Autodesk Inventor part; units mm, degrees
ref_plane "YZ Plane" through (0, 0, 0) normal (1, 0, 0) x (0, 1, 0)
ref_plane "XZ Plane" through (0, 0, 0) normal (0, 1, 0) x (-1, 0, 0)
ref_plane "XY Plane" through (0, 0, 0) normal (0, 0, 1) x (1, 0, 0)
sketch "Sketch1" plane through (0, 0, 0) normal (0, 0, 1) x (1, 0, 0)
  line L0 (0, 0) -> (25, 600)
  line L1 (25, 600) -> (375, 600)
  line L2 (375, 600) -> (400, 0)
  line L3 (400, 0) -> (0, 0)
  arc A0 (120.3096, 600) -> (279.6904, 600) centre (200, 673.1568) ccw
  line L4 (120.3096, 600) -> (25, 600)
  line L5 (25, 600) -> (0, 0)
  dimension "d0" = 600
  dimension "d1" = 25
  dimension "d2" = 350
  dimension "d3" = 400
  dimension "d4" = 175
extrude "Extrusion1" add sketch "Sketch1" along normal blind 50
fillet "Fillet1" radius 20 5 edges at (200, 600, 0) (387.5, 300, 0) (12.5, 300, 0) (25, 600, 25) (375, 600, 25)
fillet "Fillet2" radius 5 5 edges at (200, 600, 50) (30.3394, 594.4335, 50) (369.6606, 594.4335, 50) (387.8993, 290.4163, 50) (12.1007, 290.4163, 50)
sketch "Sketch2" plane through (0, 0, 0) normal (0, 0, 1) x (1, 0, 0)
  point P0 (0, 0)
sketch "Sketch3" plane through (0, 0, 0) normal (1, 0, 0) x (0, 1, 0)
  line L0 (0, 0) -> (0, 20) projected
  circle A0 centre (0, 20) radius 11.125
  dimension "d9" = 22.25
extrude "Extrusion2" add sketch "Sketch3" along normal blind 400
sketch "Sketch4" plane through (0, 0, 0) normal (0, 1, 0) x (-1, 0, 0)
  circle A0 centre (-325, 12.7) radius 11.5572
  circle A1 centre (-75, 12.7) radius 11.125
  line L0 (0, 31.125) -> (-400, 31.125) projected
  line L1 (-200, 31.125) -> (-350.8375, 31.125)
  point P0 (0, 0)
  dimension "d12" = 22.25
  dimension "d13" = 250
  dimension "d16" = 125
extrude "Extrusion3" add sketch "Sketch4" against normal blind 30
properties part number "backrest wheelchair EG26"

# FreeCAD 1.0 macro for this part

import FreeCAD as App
import Part
import Sketcher
Q = App.Units.Quantity


def edges_at(feature, points):
    """Names of the edges that pass closest to the given points."""
    edges = feature.Shape.Edges
    near = lambda p: min(range(len(edges)), key=lambda i: edges[i].distToShape(Part.Vertex(*p))[0])
    return sorted({f"Edge{near(p) + 1}" for p in points})


def add_polygon(sketch, points):
    """Adds a closed chain of lines whose ends are joined by coincident constraints."""
    first, n = sketch.GeometryCount, len(points)
    for a, b in zip(points, points[1:] + points[:1]):
        sketch.addGeometry(Part.LineSegment(App.Vector(*a, 0), App.Vector(*b, 0)), False)
    for i in range(n):
        sketch.addConstraint(Sketcher.Constraint("Coincident", first + i, 2, first + (i + 1) % n, 1))

doc = App.newDocument("Part")
body = doc.addObject("PartDesign::Body", "Body")

sketch1 = doc.addObject("Sketcher::SketchObject", "Sketch")
body.addObject(sketch1)
sketch1.AttachmentSupport = (doc.XY_Plane, [""])
sketch1.MapMode = "FlatFace"
add_polygon(sketch1, [(25, 600), (0, 0), (400, 0), (375, 600)])
sketch1.addConstraint([
    Sketcher.Constraint("Horizontal", 1),
    Sketcher.Constraint("Horizontal", 3),
    Sketcher.Constraint("Coincident", 0, 2, -1, 1),
    Sketcher.Constraint("Equal", 0, 2),
    Sketcher.Constraint("DistanceX", 1, 1, 1, 2, Q("400 mm")),
    Sketcher.Constraint("DistanceX", 3, 2, 3, 1, Q("350 mm")),
    Sketcher.Constraint("DistanceY", -1, 1, 2, 2, Q("600 mm")),
])
pad1 = doc.addObject("PartDesign::Pad", "Pad")
body.addObject(pad1)
pad1.Profile = sketch1
pad1.Length = 50
doc.recompute()

fillet = doc.addObject("PartDesign::Fillet", "Fillet")
body.addObject(fillet)
fillet.Base = (pad1, edges_at(pad1, [
    (200, 600, 0),
    (387.5, 300, 0),
    (12.5, 300, 0),
    (25, 600, 25),
    (375, 600, 25),
]))
fillet.Radius = 20
doc.recompute()

fillet2 = doc.addObject("PartDesign::Fillet", "Fillet001")
body.addObject(fillet2)
fillet2.Base = (fillet, edges_at(fillet, [
    (200, 600, 50),
    (30.339, 594.433, 50),
    (369.661, 594.433, 50),
    (387.899, 290.416, 50),
    (12.101, 290.416, 50),
]))
fillet2.Radius = 5

sketch2 = doc.addObject("Sketcher::SketchObject", "Sketch001")
body.addObject(sketch2)
sketch2.AttachmentSupport = (doc.YZ_Plane, [""])
sketch2.MapMode = "FlatFace"
sketch2.addGeometry(Part.Circle(App.Vector(0, 20, 0), App.Vector(0, 0, 1), 11), False)
sketch2.addConstraint([
    Sketcher.Constraint("PointOnObject", 0, 3, -2),
    Sketcher.Constraint("Diameter", 0, Q("22.25 mm")),
    Sketcher.Constraint("DistanceY", -1, 1, 0, 3, Q("20 mm")),
])
pad2 = doc.addObject("PartDesign::Pad", "Pad001")
body.addObject(pad2)
pad2.Profile = sketch2
pad2.Length = 400

sketch3 = doc.addObject("Sketcher::SketchObject", "Sketch002")
body.addObject(sketch3)
sketch3.AttachmentSupport = (doc.XZ_Plane, [""])
sketch3.MapMode = "FlatFace"
sketch3.addGeometry([
    Part.Circle(App.Vector(325, 13, 0), App.Vector(0, 0, 1), 12),
    Part.Circle(App.Vector(75, 13, 0), App.Vector(0, 0, 1), 11),
], False)
sketch3.addConstraint([
    Sketcher.Constraint("Horizontal", 0, 3, 1, 3),
    Sketcher.Constraint("Diameter", 1, Q("22.25 mm")),
    Sketcher.Constraint("DistanceX", 1, 3, 0, 3, Q("250 mm")),
    Sketcher.Constraint("DistanceX", -1, 1, 0, 3, Q("325 mm")),
    Sketcher.Constraint("Diameter", 0, Q("23.1144 mm")),
    Sketcher.Constraint("DistanceY", -1, 1, 0, 3, Q("12.7 mm")),
])
pad3 = doc.addObject("PartDesign::Pad", "Pad002")
body.addObject(pad3)
pad3.Profile = sketch3
pad3.Length = 30

doc.recompute()
